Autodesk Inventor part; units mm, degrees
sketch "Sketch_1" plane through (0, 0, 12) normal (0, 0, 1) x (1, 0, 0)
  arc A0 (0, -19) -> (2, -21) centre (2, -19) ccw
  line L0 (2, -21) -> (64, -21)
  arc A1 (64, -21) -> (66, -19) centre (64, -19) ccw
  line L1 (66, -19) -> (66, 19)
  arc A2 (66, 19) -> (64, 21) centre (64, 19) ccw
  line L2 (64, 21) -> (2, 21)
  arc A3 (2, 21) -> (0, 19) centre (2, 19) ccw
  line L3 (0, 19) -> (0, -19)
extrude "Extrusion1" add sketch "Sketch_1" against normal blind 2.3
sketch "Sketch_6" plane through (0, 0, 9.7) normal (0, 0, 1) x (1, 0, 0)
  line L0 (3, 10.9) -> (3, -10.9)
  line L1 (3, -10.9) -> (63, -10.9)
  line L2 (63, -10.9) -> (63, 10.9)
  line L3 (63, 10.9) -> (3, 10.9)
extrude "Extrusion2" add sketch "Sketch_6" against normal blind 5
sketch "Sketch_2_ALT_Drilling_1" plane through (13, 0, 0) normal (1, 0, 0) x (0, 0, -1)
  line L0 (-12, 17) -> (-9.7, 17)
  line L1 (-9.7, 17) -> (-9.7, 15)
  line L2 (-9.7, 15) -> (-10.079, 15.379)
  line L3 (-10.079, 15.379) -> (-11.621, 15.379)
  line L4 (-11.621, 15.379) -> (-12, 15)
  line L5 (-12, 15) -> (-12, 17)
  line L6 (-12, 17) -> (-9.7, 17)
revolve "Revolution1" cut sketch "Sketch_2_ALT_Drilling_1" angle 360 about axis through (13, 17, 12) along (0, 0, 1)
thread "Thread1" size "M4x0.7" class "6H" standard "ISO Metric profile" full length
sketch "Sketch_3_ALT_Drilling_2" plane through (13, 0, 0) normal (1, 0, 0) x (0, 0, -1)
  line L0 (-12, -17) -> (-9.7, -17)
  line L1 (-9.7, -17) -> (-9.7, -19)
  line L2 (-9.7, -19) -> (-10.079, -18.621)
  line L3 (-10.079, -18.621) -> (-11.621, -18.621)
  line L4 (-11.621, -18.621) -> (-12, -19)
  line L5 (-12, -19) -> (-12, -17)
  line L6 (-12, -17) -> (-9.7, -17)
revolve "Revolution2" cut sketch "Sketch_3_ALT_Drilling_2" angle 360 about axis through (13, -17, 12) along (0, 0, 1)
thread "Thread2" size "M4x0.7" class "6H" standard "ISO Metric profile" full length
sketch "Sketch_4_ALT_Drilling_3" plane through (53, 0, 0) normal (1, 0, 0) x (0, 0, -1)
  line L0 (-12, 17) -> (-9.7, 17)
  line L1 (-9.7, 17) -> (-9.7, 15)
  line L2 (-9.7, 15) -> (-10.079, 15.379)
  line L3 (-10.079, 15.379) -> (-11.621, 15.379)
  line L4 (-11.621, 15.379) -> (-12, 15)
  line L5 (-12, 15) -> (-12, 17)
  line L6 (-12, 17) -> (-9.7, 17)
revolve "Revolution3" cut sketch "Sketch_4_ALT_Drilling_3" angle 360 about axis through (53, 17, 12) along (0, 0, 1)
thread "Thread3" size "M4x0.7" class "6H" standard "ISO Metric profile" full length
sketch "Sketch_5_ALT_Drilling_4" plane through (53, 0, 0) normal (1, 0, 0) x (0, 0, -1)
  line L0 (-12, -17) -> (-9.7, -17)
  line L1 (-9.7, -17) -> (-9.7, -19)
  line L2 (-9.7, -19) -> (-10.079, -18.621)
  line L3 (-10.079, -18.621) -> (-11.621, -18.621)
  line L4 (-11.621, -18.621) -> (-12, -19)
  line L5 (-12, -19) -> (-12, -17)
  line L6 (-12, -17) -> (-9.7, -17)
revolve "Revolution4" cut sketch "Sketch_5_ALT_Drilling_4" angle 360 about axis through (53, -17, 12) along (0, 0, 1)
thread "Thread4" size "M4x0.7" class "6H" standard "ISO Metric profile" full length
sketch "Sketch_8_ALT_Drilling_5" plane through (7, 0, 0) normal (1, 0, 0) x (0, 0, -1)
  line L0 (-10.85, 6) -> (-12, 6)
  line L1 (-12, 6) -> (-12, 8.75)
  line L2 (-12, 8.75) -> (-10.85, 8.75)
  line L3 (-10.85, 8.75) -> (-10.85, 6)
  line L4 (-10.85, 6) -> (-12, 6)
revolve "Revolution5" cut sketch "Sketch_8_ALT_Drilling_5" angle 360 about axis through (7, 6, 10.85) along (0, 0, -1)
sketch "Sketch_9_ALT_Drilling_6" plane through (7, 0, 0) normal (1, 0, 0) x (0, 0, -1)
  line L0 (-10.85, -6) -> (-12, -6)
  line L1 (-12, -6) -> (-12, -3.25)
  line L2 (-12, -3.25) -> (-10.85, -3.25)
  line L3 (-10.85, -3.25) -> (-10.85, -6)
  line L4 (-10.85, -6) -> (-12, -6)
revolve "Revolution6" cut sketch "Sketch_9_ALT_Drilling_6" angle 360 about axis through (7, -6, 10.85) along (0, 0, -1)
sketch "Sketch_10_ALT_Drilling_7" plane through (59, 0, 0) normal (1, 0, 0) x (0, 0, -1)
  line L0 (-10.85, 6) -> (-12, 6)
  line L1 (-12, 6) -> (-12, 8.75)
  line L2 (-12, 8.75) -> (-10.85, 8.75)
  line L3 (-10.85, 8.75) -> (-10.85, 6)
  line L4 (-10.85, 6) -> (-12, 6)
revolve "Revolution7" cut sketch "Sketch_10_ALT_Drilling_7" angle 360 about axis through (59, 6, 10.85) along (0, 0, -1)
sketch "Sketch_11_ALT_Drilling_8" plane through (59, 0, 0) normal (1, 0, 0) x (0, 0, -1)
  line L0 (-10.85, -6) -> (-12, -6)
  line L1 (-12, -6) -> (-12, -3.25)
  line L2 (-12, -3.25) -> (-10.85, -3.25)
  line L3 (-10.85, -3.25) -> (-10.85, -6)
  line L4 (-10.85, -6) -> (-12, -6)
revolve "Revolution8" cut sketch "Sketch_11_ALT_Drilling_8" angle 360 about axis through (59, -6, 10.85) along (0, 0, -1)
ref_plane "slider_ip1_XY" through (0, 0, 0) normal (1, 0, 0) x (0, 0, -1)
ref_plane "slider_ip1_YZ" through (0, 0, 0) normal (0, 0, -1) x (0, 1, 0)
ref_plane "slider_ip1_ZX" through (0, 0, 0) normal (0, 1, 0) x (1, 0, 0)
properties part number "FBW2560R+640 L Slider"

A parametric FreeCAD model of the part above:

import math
import FreeCAD as App
import Part
import Sketcher

V = App.Vector
Q = App.Units.Quantity

doc = App.newDocument("Part")
body = doc.addObject("PartDesign::Body", "Body")

# Sketch on XY plane
sketch1 = body.newObject("Sketcher::SketchObject", "Sketch")
sketch1.AttachmentSupport = (doc.getObject("XY_Plane"), [""])
sketch1.MapMode = "FlatFace"
sketch1.AttachmentOffset = App.Placement(V(0, 0, 12), App.Rotation())
sketch1.addGeometry(Part.LineSegment(V(0, 19, 0), V(0, -19, 0)), False)
sketch1.addGeometry(Part.ArcOfCircle(Part.Circle(V(2, -19, 0), V(0, 0, 1), 2), math.radians(180), math.radians(270)), False)
sketch1.addGeometry(Part.LineSegment(V(2, -21, 0), V(64, -21, 0)), False)
sketch1.addGeometry(Part.ArcOfCircle(Part.Circle(V(64, -19, 0), V(0, 0, 1), 2), math.radians(-90), math.radians(0)), False)
sketch1.addGeometry(Part.LineSegment(V(66, -19, 0), V(66, 19, 0)), False)
sketch1.addGeometry(Part.ArcOfCircle(Part.Circle(V(64, 19, 0), V(0, 0, 1), 2), math.radians(0), math.radians(90)), False)
sketch1.addGeometry(Part.LineSegment(V(64, 21, 0), V(2, 21, 0)), False)
sketch1.addGeometry(Part.ArcOfCircle(Part.Circle(V(2, 19, 0), V(0, 0, 1), 2), math.radians(90), math.radians(180)), False)
sketch1.addConstraint(Sketcher.Constraint("Tangent", 0, 2, 1, 1))
sketch1.addConstraint(Sketcher.Constraint("Tangent", 1, 2, 2, 1))
sketch1.addConstraint(Sketcher.Constraint("Tangent", 2, 2, 3, 1))
sketch1.addConstraint(Sketcher.Constraint("Tangent", 3, 2, 4, 1))
sketch1.addConstraint(Sketcher.Constraint("Tangent", 4, 2, 5, 1))
sketch1.addConstraint(Sketcher.Constraint("Tangent", 5, 2, 6, 1))
sketch1.addConstraint(Sketcher.Constraint("Tangent", 6, 2, 7, 1))
sketch1.addConstraint(Sketcher.Constraint("Tangent", 7, 2, 0, 1))
sketch1.addConstraint(Sketcher.Constraint("Vertical", 0))
sketch1.addConstraint(Sketcher.Constraint("Horizontal", 2))
sketch1.addConstraint(Sketcher.Constraint("Vertical", 4))
sketch1.addConstraint(Sketcher.Constraint("Horizontal", 6))
sketch1.addConstraint(Sketcher.Constraint("Equal", 1, 3))
sketch1.addConstraint(Sketcher.Constraint("Equal", 3, 5))
sketch1.addConstraint(Sketcher.Constraint("Equal", 5, 7))
sketch1.addConstraint(Sketcher.Constraint("Symmetric", 0, 2, 7, 2, -1, 1))
sketch1.addConstraint(Sketcher.Constraint("Radius", 1, Q("2 mm")))
sketch1.addConstraint(Sketcher.Constraint("DistanceX", 2, 1, 2, 2, Q("62 mm")))
sketch1.addConstraint(Sketcher.Constraint("DistanceY", 0, 2, 0, 1, Q("38 mm")))
pad1 = body.newObject("PartDesign::Pad", "Pad")
pad1.Profile = sketch1
pad1.Length = 2.3
pad1.Reversed = True

# Sketch on XY plane
sketch2 = body.newObject("Sketcher::SketchObject", "Sketch001")
sketch2.AttachmentSupport = (doc.getObject("XY_Plane"), [""])
sketch2.MapMode = "FlatFace"
sketch2.AttachmentOffset = App.Placement(V(0, 0, 9.7), App.Rotation())
sketch2.addGeometry(Part.LineSegment(V(63, 11, 0), V(3, 11, 0)), False)
sketch2.addGeometry(Part.LineSegment(V(3, 11, 0), V(3, -11, 0)), False)
sketch2.addGeometry(Part.LineSegment(V(3, -11, 0), V(63, -11, 0)), False)
sketch2.addGeometry(Part.LineSegment(V(63, -11, 0), V(63, 11, 0)), False)
sketch2.addConstraint(Sketcher.Constraint("Coincident", 0, 2, 1, 1))
sketch2.addConstraint(Sketcher.Constraint("Coincident", 1, 2, 2, 1))
sketch2.addConstraint(Sketcher.Constraint("Coincident", 2, 2, 3, 1))
sketch2.addConstraint(Sketcher.Constraint("Coincident", 3, 2, 0, 1))
sketch2.addConstraint(Sketcher.Constraint("Horizontal", 0))
sketch2.addConstraint(Sketcher.Constraint("Vertical", 1))
sketch2.addConstraint(Sketcher.Constraint("Horizontal", 2))
sketch2.addConstraint(Sketcher.Constraint("Vertical", 3))
sketch2.addConstraint(Sketcher.Constraint("DistanceX", 0, 2, 0, 1, Q("60 mm")))
sketch2.addConstraint(Sketcher.Constraint("DistanceY", 1, 2, 1, 1, Q("21.8 mm")))
sketch2.addConstraint(Sketcher.Constraint("DistanceX", -1, 1, 0, 2, Q("3 mm")))
sketch2.addConstraint(Sketcher.Constraint("DistanceY", -1, 1, 0, 2, Q("10.9 mm")))
pad2 = body.newObject("PartDesign::Pad", "Pad001")
pad2.Profile = sketch2
pad2.Length = 5
pad2.Reversed = True

# Sketch on YZ plane
sketch3 = body.newObject("Sketcher::SketchObject", "Sketch002")
sketch3.AttachmentSupport = (doc.getObject("YZ_Plane"), [""])
sketch3.MapMode = "FlatFace"
sketch3.AttachmentOffset = App.Placement(V(0, 0, 13), App.Rotation())
sketch3.addGeometry(Part.LineSegment(V(17, 9.7, 0), V(17, 12, 0)), False)
sketch3.addGeometry(Part.LineSegment(V(17, 12, 0), V(15, 12, 0)), False)
sketch3.addGeometry(Part.LineSegment(V(15, 12, 0), V(15.4, 11.6, 0)), False)
sketch3.addGeometry(Part.LineSegment(V(15.4, 11.6, 0), V(15.4, 10.1, 0)), False)
sketch3.addGeometry(Part.LineSegment(V(15.4, 10.1, 0), V(15, 9.7, 0)), False)
sketch3.addGeometry(Part.LineSegment(V(15, 9.7, 0), V(17, 9.7, 0)), False)
sketch3.addGeometry(Part.LineSegment(V(17, 9.7, 0), V(17, 12, 0)), True)  # axis
sketch3.addConstraint(Sketcher.Constraint("Coincident", 0, 2, 1, 1))
sketch3.addConstraint(Sketcher.Constraint("Coincident", 1, 2, 2, 1))
sketch3.addConstraint(Sketcher.Constraint("Coincident", 2, 2, 3, 1))
sketch3.addConstraint(Sketcher.Constraint("Coincident", 3, 2, 4, 1))
sketch3.addConstraint(Sketcher.Constraint("Coincident", 4, 2, 5, 1))
sketch3.addConstraint(Sketcher.Constraint("Coincident", 5, 2, 0, 1))
sketch3.addConstraint(Sketcher.Constraint("Vertical", 0))
sketch3.addConstraint(Sketcher.Constraint("Horizontal", 1))
sketch3.addConstraint(Sketcher.Constraint("Vertical", 3))
sketch3.addConstraint(Sketcher.Constraint("Horizontal", 5))
sketch3.addConstraint(Sketcher.Constraint("Vertical", 6))
sketch3.addConstraint(Sketcher.Constraint("Coincident", 6, 1, 5, 2))
sketch3.addConstraint(Sketcher.Constraint("Perpendicular", 2, 4))
sketch3.addConstraint(Sketcher.Constraint("Horizontal", 1, 2, 6, 2))
sketch3.addConstraint(Sketcher.Constraint("Vertical", 1, 2, 4, 2))
sketch3.addConstraint(Sketcher.Constraint("Equal", 2, 4))
sketch3.addConstraint(Sketcher.Constraint("DistanceX", 1, 2, 1, 1, Q("2 mm")))
sketch3.addConstraint(Sketcher.Constraint("DistanceY", 0, 1, 0, 2, Q("2.3 mm")))
sketch3.addConstraint(Sketcher.Constraint("DistanceX", -1, 1, 0, 2, Q("17 mm")))
sketch3.addConstraint(Sketcher.Constraint("DistanceY", -1, 1, 0, 2, Q("12 mm")))
sketch3.addConstraint(Sketcher.Constraint("DistanceY", 3, 2, 3, 1, Q("1.542 mm")))
groove = body.newObject("PartDesign::Groove", "Groove")
groove.Profile = sketch3
groove.ReferenceAxis = (sketch3, ["Axis0"])
groove.Angle = 360

# Sketch on YZ plane
sketch4 = body.newObject("Sketcher::SketchObject", "Sketch003")
sketch4.AttachmentSupport = (doc.getObject("YZ_Plane"), [""])
sketch4.MapMode = "FlatFace"
sketch4.AttachmentOffset = App.Placement(V(0, 0, 13), App.Rotation())
sketch4.addGeometry(Part.LineSegment(V(-17, 9.7, 0), V(-17, 12, 0)), False)
sketch4.addGeometry(Part.LineSegment(V(-17, 12, 0), V(-19, 12, 0)), False)
sketch4.addGeometry(Part.LineSegment(V(-19, 12, 0), V(-18.6, 11.6, 0)), False)
sketch4.addGeometry(Part.LineSegment(V(-18.6, 11.6, 0), V(-18.6, 10.1, 0)), False)
sketch4.addGeometry(Part.LineSegment(V(-18.6, 10.1, 0), V(-19, 9.7, 0)), False)
sketch4.addGeometry(Part.LineSegment(V(-19, 9.7, 0), V(-17, 9.7, 0)), False)
sketch4.addGeometry(Part.LineSegment(V(-17, 9.7, 0), V(-17, 12, 0)), True)  # axis
sketch4.addConstraint(Sketcher.Constraint("Coincident", 0, 2, 1, 1))
sketch4.addConstraint(Sketcher.Constraint("Coincident", 1, 2, 2, 1))
sketch4.addConstraint(Sketcher.Constraint("Coincident", 2, 2, 3, 1))
sketch4.addConstraint(Sketcher.Constraint("Coincident", 3, 2, 4, 1))
sketch4.addConstraint(Sketcher.Constraint("Coincident", 4, 2, 5, 1))
sketch4.addConstraint(Sketcher.Constraint("Coincident", 5, 2, 0, 1))
sketch4.addConstraint(Sketcher.Constraint("Vertical", 0))
sketch4.addConstraint(Sketcher.Constraint("Horizontal", 1))
sketch4.addConstraint(Sketcher.Constraint("Vertical", 3))
sketch4.addConstraint(Sketcher.Constraint("Horizontal", 5))
sketch4.addConstraint(Sketcher.Constraint("Vertical", 6))
sketch4.addConstraint(Sketcher.Constraint("Coincident", 6, 1, 5, 2))
sketch4.addConstraint(Sketcher.Constraint("Perpendicular", 2, 4))
sketch4.addConstraint(Sketcher.Constraint("Horizontal", 1, 2, 6, 2))
sketch4.addConstraint(Sketcher.Constraint("Vertical", 1, 2, 4, 2))
sketch4.addConstraint(Sketcher.Constraint("Equal", 2, 4))
sketch4.addConstraint(Sketcher.Constraint("DistanceX", 1, 2, 1, 1, Q("2 mm")))
sketch4.addConstraint(Sketcher.Constraint("DistanceY", 0, 1, 0, 2, Q("2.3 mm")))
sketch4.addConstraint(Sketcher.Constraint("DistanceX", 0, 2, -1, 1, Q("17 mm")))
sketch4.addConstraint(Sketcher.Constraint("DistanceY", -1, 1, 0, 2, Q("12 mm")))
sketch4.addConstraint(Sketcher.Constraint("DistanceY", 3, 2, 3, 1, Q("1.542 mm")))
groove2 = body.newObject("PartDesign::Groove", "Groove001")
groove2.Profile = sketch4
groove2.ReferenceAxis = (sketch4, ["Axis0"])
groove2.Angle = 360

# Sketch on YZ plane
sketch5 = body.newObject("Sketcher::SketchObject", "Sketch004")
sketch5.AttachmentSupport = (doc.getObject("YZ_Plane"), [""])
sketch5.MapMode = "FlatFace"
sketch5.AttachmentOffset = App.Placement(V(0, 0, 53), App.Rotation())
sketch5.addGeometry(Part.LineSegment(V(17, 9.7, 0), V(17, 12, 0)), False)
sketch5.addGeometry(Part.LineSegment(V(17, 12, 0), V(15, 12, 0)), False)
sketch5.addGeometry(Part.LineSegment(V(15, 12, 0), V(15.4, 11.6, 0)), False)
sketch5.addGeometry(Part.LineSegment(V(15.4, 11.6, 0), V(15.4, 10.1, 0)), False)
sketch5.addGeometry(Part.LineSegment(V(15.4, 10.1, 0), V(15, 9.7, 0)), False)
sketch5.addGeometry(Part.LineSegment(V(15, 9.7, 0), V(17, 9.7, 0)), False)
sketch5.addGeometry(Part.LineSegment(V(17, 9.7, 0), V(17, 12, 0)), True)  # axis
sketch5.addConstraint(Sketcher.Constraint("Coincident", 0, 2, 1, 1))
sketch5.addConstraint(Sketcher.Constraint("Coincident", 1, 2, 2, 1))
sketch5.addConstraint(Sketcher.Constraint("Coincident", 2, 2, 3, 1))
sketch5.addConstraint(Sketcher.Constraint("Coincident", 3, 2, 4, 1))
sketch5.addConstraint(Sketcher.Constraint("Coincident", 4, 2, 5, 1))
sketch5.addConstraint(Sketcher.Constraint("Coincident", 5, 2, 0, 1))
sketch5.addConstraint(Sketcher.Constraint("Vertical", 0))
sketch5.addConstraint(Sketcher.Constraint("Horizontal", 1))
sketch5.addConstraint(Sketcher.Constraint("Vertical", 3))
sketch5.addConstraint(Sketcher.Constraint("Horizontal", 5))
sketch5.addConstraint(Sketcher.Constraint("Vertical", 6))
sketch5.addConstraint(Sketcher.Constraint("Coincident", 6, 1, 5, 2))
sketch5.addConstraint(Sketcher.Constraint("Perpendicular", 2, 4))
sketch5.addConstraint(Sketcher.Constraint("Horizontal", 1, 2, 6, 2))
sketch5.addConstraint(Sketcher.Constraint("Vertical", 1, 2, 4, 2))
sketch5.addConstraint(Sketcher.Constraint("Equal", 2, 4))
sketch5.addConstraint(Sketcher.Constraint("DistanceX", 1, 2, 1, 1, Q("2 mm")))
sketch5.addConstraint(Sketcher.Constraint("DistanceY", 0, 1, 0, 2, Q("2.3 mm")))
sketch5.addConstraint(Sketcher.Constraint("DistanceX", -1, 1, 0, 2, Q("17 mm")))
sketch5.addConstraint(Sketcher.Constraint("DistanceY", -1, 1, 0, 2, Q("12 mm")))
sketch5.addConstraint(Sketcher.Constraint("DistanceY", 3, 2, 3, 1, Q("1.542 mm")))
groove3 = body.newObject("PartDesign::Groove", "Groove002")
groove3.Profile = sketch5
groove3.ReferenceAxis = (sketch5, ["Axis0"])
groove3.Angle = 360

# Sketch on YZ plane
sketch6 = body.newObject("Sketcher::SketchObject", "Sketch005")
sketch6.AttachmentSupport = (doc.getObject("YZ_Plane"), [""])
sketch6.MapMode = "FlatFace"
sketch6.AttachmentOffset = App.Placement(V(0, 0, 53), App.Rotation())
sketch6.addGeometry(Part.LineSegment(V(-17, 9.7, 0), V(-17, 12, 0)), False)
sketch6.addGeometry(Part.LineSegment(V(-17, 12, 0), V(-19, 12, 0)), False)
sketch6.addGeometry(Part.LineSegment(V(-19, 12, 0), V(-18.6, 11.6, 0)), False)
sketch6.addGeometry(Part.LineSegment(V(-18.6, 11.6, 0), V(-18.6, 10.1, 0)), False)
sketch6.addGeometry(Part.LineSegment(V(-18.6, 10.1, 0), V(-19, 9.7, 0)), False)
sketch6.addGeometry(Part.LineSegment(V(-19, 9.7, 0), V(-17, 9.7, 0)), False)
sketch6.addGeometry(Part.LineSegment(V(-17, 9.7, 0), V(-17, 12, 0)), True)  # axis
sketch6.addConstraint(Sketcher.Constraint("Coincident", 0, 2, 1, 1))
sketch6.addConstraint(Sketcher.Constraint("Coincident", 1, 2, 2, 1))
sketch6.addConstraint(Sketcher.Constraint("Coincident", 2, 2, 3, 1))
sketch6.addConstraint(Sketcher.Constraint("Coincident", 3, 2, 4, 1))
sketch6.addConstraint(Sketcher.Constraint("Coincident", 4, 2, 5, 1))
sketch6.addConstraint(Sketcher.Constraint("Coincident", 5, 2, 0, 1))
sketch6.addConstraint(Sketcher.Constraint("Vertical", 0))
sketch6.addConstraint(Sketcher.Constraint("Horizontal", 1))
sketch6.addConstraint(Sketcher.Constraint("Vertical", 3))
sketch6.addConstraint(Sketcher.Constraint("Horizontal", 5))
sketch6.addConstraint(Sketcher.Constraint("Vertical", 6))
sketch6.addConstraint(Sketcher.Constraint("Coincident", 6, 1, 5, 2))
sketch6.addConstraint(Sketcher.Constraint("Perpendicular", 2, 4))
sketch6.addConstraint(Sketcher.Constraint("Horizontal", 1, 2, 6, 2))
sketch6.addConstraint(Sketcher.Constraint("Vertical", 1, 2, 4, 2))
sketch6.addConstraint(Sketcher.Constraint("Equal", 2, 4))
sketch6.addConstraint(Sketcher.Constraint("DistanceX", 1, 2, 1, 1, Q("2 mm")))
sketch6.addConstraint(Sketcher.Constraint("DistanceY", 0, 1, 0, 2, Q("2.3 mm")))
sketch6.addConstraint(Sketcher.Constraint("DistanceX", 0, 2, -1, 1, Q("17 mm")))
sketch6.addConstraint(Sketcher.Constraint("DistanceY", -1, 1, 0, 2, Q("12 mm")))
sketch6.addConstraint(Sketcher.Constraint("DistanceY", 3, 2, 3, 1, Q("1.542 mm")))
groove4 = body.newObject("PartDesign::Groove", "Groove003")
groove4.Profile = sketch6
groove4.ReferenceAxis = (sketch6, ["Axis0"])
groove4.Angle = 360

# Sketch on YZ plane
sketch7 = body.newObject("Sketcher::SketchObject", "Sketch006")
sketch7.AttachmentSupport = (doc.getObject("YZ_Plane"), [""])
sketch7.MapMode = "FlatFace"
sketch7.AttachmentOffset = App.Placement(V(0, 0, 7), App.Rotation())
sketch7.addGeometry(Part.LineSegment(V(6, 12, 0), V(6, 10.8, 0)), False)
sketch7.addGeometry(Part.LineSegment(V(6, 10.8, 0), V(8.8, 10.8, 0)), False)
sketch7.addGeometry(Part.LineSegment(V(8.8, 10.8, 0), V(8.8, 12, 0)), False)
sketch7.addGeometry(Part.LineSegment(V(8.8, 12, 0), V(6, 12, 0)), False)
sketch7.addGeometry(Part.LineSegment(V(6, 12, 0), V(6, 10.8, 0)), True)  # axis
sketch7.addConstraint(Sketcher.Constraint("Coincident", 0, 2, 1, 1))
sketch7.addConstraint(Sketcher.Constraint("Coincident", 1, 2, 2, 1))
sketch7.addConstraint(Sketcher.Constraint("Coincident", 2, 2, 3, 1))
sketch7.addConstraint(Sketcher.Constraint("Coincident", 3, 2, 0, 1))
sketch7.addConstraint(Sketcher.Constraint("Vertical", 0))
sketch7.addConstraint(Sketcher.Constraint("Horizontal", 1))
sketch7.addConstraint(Sketcher.Constraint("Vertical", 2))
sketch7.addConstraint(Sketcher.Constraint("Horizontal", 3))
sketch7.addConstraint(Sketcher.Constraint("Vertical", 4))
sketch7.addConstraint(Sketcher.Constraint("Coincident", 4, 1, 3, 2))
sketch7.addConstraint(Sketcher.Constraint("Horizontal", 1, 2, 4, 2))
sketch7.addConstraint(Sketcher.Constraint("DistanceX", -1, 1, 0, 2, Q("6 mm")))
sketch7.addConstraint(Sketcher.Constraint("DistanceY", -1, 1, 2, 2, Q("12 mm")))
sketch7.addConstraint(Sketcher.Constraint("DistanceX", 1, 1, 1, 2, Q("2.75 mm")))
sketch7.addConstraint(Sketcher.Constraint("DistanceY", 0, 2, 0, 1, Q("1.15 mm")))
groove5 = body.newObject("PartDesign::Groove", "Groove004")
groove5.Profile = sketch7
groove5.ReferenceAxis = (sketch7, ["Axis0"])
groove5.Angle = 360

# Sketch on YZ plane
sketch8 = body.newObject("Sketcher::SketchObject", "Sketch007")
sketch8.AttachmentSupport = (doc.getObject("YZ_Plane"), [""])
sketch8.MapMode = "FlatFace"
sketch8.AttachmentOffset = App.Placement(V(0, 0, 7), App.Rotation())
sketch8.addGeometry(Part.LineSegment(V(-6, 12, 0), V(-6, 10.8, 0)), False)
sketch8.addGeometry(Part.LineSegment(V(-6, 10.8, 0), V(-3.2, 10.8, 0)), False)
sketch8.addGeometry(Part.LineSegment(V(-3.2, 10.8, 0), V(-3.2, 12, 0)), False)
sketch8.addGeometry(Part.LineSegment(V(-3.2, 12, 0), V(-6, 12, 0)), False)
sketch8.addGeometry(Part.LineSegment(V(-6, 12, 0), V(-6, 10.8, 0)), True)  # axis
sketch8.addConstraint(Sketcher.Constraint("Coincident", 0, 2, 1, 1))
sketch8.addConstraint(Sketcher.Constraint("Coincident", 1, 2, 2, 1))
sketch8.addConstraint(Sketcher.Constraint("Coincident", 2, 2, 3, 1))
sketch8.addConstraint(Sketcher.Constraint("Coincident", 3, 2, 0, 1))
sketch8.addConstraint(Sketcher.Constraint("Vertical", 0))
sketch8.addConstraint(Sketcher.Constraint("Horizontal", 1))
sketch8.addConstraint(Sketcher.Constraint("Vertical", 2))
sketch8.addConstraint(Sketcher.Constraint("Horizontal", 3))
sketch8.addConstraint(Sketcher.Constraint("Vertical", 4))
sketch8.addConstraint(Sketcher.Constraint("Coincident", 4, 1, 3, 2))
sketch8.addConstraint(Sketcher.Constraint("Horizontal", 1, 2, 4, 2))
sketch8.addConstraint(Sketcher.Constraint("DistanceX", 0, 2, -1, 1, Q("6 mm")))
sketch8.addConstraint(Sketcher.Constraint("DistanceY", -1, 1, 2, 2, Q("12 mm")))
sketch8.addConstraint(Sketcher.Constraint("DistanceX", 1, 1, 1, 2, Q("2.75 mm")))
sketch8.addConstraint(Sketcher.Constraint("DistanceY", 0, 2, 0, 1, Q("1.15 mm")))
groove6 = body.newObject("PartDesign::Groove", "Groove005")
groove6.Profile = sketch8
groove6.ReferenceAxis = (sketch8, ["Axis0"])
groove6.Angle = 360

# Sketch on YZ plane
sketch9 = body.newObject("Sketcher::SketchObject", "Sketch008")
sketch9.AttachmentSupport = (doc.getObject("YZ_Plane"), [""])
sketch9.MapMode = "FlatFace"
sketch9.AttachmentOffset = App.Placement(V(0, 0, 59), App.Rotation())
sketch9.addGeometry(Part.LineSegment(V(6, 12, 0), V(6, 10.8, 0)), False)
sketch9.addGeometry(Part.LineSegment(V(6, 10.8, 0), V(8.8, 10.8, 0)), False)
sketch9.addGeometry(Part.LineSegment(V(8.8, 10.8, 0), V(8.8, 12, 0)), False)
sketch9.addGeometry(Part.LineSegment(V(8.8, 12, 0), V(6, 12, 0)), False)
sketch9.addGeometry(Part.LineSegment(V(6, 12, 0), V(6, 10.8, 0)), True)  # axis
sketch9.addConstraint(Sketcher.Constraint("Coincident", 0, 2, 1, 1))
sketch9.addConstraint(Sketcher.Constraint("Coincident", 1, 2, 2, 1))
sketch9.addConstraint(Sketcher.Constraint("Coincident", 2, 2, 3, 1))
sketch9.addConstraint(Sketcher.Constraint("Coincident", 3, 2, 0, 1))
sketch9.addConstraint(Sketcher.Constraint("Vertical", 0))
sketch9.addConstraint(Sketcher.Constraint("Horizontal", 1))
sketch9.addConstraint(Sketcher.Constraint("Vertical", 2))
sketch9.addConstraint(Sketcher.Constraint("Horizontal", 3))
sketch9.addConstraint(Sketcher.Constraint("Vertical", 4))
sketch9.addConstraint(Sketcher.Constraint("Coincident", 4, 1, 3, 2))
sketch9.addConstraint(Sketcher.Constraint("Horizontal", 1, 2, 4, 2))
sketch9.addConstraint(Sketcher.Constraint("DistanceX", -1, 1, 0, 2, Q("6 mm")))
sketch9.addConstraint(Sketcher.Constraint("DistanceY", -1, 1, 2, 2, Q("12 mm")))
sketch9.addConstraint(Sketcher.Constraint("DistanceX", 1, 1, 1, 2, Q("2.75 mm")))
sketch9.addConstraint(Sketcher.Constraint("DistanceY", 0, 2, 0, 1, Q("1.15 mm")))
groove7 = body.newObject("PartDesign::Groove", "Groove006")
groove7.Profile = sketch9
groove7.ReferenceAxis = (sketch9, ["Axis0"])
groove7.Angle = 360

# Sketch on YZ plane
sketch10 = body.newObject("Sketcher::SketchObject", "Sketch009")
sketch10.AttachmentSupport = (doc.getObject("YZ_Plane"), [""])
sketch10.MapMode = "FlatFace"
sketch10.AttachmentOffset = App.Placement(V(0, 0, 59), App.Rotation())
sketch10.addGeometry(Part.LineSegment(V(-6, 12, 0), V(-6, 10.8, 0)), False)
sketch10.addGeometry(Part.LineSegment(V(-6, 10.8, 0), V(-3.2, 10.8, 0)), False)
sketch10.addGeometry(Part.LineSegment(V(-3.2, 10.8, 0), V(-3.2, 12, 0)), False)
sketch10.addGeometry(Part.LineSegment(V(-3.2, 12, 0), V(-6, 12, 0)), False)
sketch10.addGeometry(Part.LineSegment(V(-6, 12, 0), V(-6, 10.8, 0)), True)  # axis
sketch10.addConstraint(Sketcher.Constraint("Coincident", 0, 2, 1, 1))
sketch10.addConstraint(Sketcher.Constraint("Coincident", 1, 2, 2, 1))
sketch10.addConstraint(Sketcher.Constraint("Coincident", 2, 2, 3, 1))
sketch10.addConstraint(Sketcher.Constraint("Coincident", 3, 2, 0, 1))
sketch10.addConstraint(Sketcher.Constraint("Vertical", 0))
sketch10.addConstraint(Sketcher.Constraint("Horizontal", 1))
sketch10.addConstraint(Sketcher.Constraint("Vertical", 2))
sketch10.addConstraint(Sketcher.Constraint("Horizontal", 3))
sketch10.addConstraint(Sketcher.Constraint("Vertical", 4))
sketch10.addConstraint(Sketcher.Constraint("Coincident", 4, 1, 3, 2))
sketch10.addConstraint(Sketcher.Constraint("Horizontal", 1, 2, 4, 2))
sketch10.addConstraint(Sketcher.Constraint("DistanceX", 0, 2, -1, 1, Q("6 mm")))
sketch10.addConstraint(Sketcher.Constraint("DistanceY", -1, 1, 2, 2, Q("12 mm")))
sketch10.addConstraint(Sketcher.Constraint("DistanceX", 1, 1, 1, 2, Q("2.75 mm")))
sketch10.addConstraint(Sketcher.Constraint("DistanceY", 0, 2, 0, 1, Q("1.15 mm")))
groove8 = body.newObject("PartDesign::Groove", "Groove007")
groove8.Profile = sketch10
groove8.ReferenceAxis = (sketch10, ["Axis0"])
groove8.Angle = 360

doc.recompute()
